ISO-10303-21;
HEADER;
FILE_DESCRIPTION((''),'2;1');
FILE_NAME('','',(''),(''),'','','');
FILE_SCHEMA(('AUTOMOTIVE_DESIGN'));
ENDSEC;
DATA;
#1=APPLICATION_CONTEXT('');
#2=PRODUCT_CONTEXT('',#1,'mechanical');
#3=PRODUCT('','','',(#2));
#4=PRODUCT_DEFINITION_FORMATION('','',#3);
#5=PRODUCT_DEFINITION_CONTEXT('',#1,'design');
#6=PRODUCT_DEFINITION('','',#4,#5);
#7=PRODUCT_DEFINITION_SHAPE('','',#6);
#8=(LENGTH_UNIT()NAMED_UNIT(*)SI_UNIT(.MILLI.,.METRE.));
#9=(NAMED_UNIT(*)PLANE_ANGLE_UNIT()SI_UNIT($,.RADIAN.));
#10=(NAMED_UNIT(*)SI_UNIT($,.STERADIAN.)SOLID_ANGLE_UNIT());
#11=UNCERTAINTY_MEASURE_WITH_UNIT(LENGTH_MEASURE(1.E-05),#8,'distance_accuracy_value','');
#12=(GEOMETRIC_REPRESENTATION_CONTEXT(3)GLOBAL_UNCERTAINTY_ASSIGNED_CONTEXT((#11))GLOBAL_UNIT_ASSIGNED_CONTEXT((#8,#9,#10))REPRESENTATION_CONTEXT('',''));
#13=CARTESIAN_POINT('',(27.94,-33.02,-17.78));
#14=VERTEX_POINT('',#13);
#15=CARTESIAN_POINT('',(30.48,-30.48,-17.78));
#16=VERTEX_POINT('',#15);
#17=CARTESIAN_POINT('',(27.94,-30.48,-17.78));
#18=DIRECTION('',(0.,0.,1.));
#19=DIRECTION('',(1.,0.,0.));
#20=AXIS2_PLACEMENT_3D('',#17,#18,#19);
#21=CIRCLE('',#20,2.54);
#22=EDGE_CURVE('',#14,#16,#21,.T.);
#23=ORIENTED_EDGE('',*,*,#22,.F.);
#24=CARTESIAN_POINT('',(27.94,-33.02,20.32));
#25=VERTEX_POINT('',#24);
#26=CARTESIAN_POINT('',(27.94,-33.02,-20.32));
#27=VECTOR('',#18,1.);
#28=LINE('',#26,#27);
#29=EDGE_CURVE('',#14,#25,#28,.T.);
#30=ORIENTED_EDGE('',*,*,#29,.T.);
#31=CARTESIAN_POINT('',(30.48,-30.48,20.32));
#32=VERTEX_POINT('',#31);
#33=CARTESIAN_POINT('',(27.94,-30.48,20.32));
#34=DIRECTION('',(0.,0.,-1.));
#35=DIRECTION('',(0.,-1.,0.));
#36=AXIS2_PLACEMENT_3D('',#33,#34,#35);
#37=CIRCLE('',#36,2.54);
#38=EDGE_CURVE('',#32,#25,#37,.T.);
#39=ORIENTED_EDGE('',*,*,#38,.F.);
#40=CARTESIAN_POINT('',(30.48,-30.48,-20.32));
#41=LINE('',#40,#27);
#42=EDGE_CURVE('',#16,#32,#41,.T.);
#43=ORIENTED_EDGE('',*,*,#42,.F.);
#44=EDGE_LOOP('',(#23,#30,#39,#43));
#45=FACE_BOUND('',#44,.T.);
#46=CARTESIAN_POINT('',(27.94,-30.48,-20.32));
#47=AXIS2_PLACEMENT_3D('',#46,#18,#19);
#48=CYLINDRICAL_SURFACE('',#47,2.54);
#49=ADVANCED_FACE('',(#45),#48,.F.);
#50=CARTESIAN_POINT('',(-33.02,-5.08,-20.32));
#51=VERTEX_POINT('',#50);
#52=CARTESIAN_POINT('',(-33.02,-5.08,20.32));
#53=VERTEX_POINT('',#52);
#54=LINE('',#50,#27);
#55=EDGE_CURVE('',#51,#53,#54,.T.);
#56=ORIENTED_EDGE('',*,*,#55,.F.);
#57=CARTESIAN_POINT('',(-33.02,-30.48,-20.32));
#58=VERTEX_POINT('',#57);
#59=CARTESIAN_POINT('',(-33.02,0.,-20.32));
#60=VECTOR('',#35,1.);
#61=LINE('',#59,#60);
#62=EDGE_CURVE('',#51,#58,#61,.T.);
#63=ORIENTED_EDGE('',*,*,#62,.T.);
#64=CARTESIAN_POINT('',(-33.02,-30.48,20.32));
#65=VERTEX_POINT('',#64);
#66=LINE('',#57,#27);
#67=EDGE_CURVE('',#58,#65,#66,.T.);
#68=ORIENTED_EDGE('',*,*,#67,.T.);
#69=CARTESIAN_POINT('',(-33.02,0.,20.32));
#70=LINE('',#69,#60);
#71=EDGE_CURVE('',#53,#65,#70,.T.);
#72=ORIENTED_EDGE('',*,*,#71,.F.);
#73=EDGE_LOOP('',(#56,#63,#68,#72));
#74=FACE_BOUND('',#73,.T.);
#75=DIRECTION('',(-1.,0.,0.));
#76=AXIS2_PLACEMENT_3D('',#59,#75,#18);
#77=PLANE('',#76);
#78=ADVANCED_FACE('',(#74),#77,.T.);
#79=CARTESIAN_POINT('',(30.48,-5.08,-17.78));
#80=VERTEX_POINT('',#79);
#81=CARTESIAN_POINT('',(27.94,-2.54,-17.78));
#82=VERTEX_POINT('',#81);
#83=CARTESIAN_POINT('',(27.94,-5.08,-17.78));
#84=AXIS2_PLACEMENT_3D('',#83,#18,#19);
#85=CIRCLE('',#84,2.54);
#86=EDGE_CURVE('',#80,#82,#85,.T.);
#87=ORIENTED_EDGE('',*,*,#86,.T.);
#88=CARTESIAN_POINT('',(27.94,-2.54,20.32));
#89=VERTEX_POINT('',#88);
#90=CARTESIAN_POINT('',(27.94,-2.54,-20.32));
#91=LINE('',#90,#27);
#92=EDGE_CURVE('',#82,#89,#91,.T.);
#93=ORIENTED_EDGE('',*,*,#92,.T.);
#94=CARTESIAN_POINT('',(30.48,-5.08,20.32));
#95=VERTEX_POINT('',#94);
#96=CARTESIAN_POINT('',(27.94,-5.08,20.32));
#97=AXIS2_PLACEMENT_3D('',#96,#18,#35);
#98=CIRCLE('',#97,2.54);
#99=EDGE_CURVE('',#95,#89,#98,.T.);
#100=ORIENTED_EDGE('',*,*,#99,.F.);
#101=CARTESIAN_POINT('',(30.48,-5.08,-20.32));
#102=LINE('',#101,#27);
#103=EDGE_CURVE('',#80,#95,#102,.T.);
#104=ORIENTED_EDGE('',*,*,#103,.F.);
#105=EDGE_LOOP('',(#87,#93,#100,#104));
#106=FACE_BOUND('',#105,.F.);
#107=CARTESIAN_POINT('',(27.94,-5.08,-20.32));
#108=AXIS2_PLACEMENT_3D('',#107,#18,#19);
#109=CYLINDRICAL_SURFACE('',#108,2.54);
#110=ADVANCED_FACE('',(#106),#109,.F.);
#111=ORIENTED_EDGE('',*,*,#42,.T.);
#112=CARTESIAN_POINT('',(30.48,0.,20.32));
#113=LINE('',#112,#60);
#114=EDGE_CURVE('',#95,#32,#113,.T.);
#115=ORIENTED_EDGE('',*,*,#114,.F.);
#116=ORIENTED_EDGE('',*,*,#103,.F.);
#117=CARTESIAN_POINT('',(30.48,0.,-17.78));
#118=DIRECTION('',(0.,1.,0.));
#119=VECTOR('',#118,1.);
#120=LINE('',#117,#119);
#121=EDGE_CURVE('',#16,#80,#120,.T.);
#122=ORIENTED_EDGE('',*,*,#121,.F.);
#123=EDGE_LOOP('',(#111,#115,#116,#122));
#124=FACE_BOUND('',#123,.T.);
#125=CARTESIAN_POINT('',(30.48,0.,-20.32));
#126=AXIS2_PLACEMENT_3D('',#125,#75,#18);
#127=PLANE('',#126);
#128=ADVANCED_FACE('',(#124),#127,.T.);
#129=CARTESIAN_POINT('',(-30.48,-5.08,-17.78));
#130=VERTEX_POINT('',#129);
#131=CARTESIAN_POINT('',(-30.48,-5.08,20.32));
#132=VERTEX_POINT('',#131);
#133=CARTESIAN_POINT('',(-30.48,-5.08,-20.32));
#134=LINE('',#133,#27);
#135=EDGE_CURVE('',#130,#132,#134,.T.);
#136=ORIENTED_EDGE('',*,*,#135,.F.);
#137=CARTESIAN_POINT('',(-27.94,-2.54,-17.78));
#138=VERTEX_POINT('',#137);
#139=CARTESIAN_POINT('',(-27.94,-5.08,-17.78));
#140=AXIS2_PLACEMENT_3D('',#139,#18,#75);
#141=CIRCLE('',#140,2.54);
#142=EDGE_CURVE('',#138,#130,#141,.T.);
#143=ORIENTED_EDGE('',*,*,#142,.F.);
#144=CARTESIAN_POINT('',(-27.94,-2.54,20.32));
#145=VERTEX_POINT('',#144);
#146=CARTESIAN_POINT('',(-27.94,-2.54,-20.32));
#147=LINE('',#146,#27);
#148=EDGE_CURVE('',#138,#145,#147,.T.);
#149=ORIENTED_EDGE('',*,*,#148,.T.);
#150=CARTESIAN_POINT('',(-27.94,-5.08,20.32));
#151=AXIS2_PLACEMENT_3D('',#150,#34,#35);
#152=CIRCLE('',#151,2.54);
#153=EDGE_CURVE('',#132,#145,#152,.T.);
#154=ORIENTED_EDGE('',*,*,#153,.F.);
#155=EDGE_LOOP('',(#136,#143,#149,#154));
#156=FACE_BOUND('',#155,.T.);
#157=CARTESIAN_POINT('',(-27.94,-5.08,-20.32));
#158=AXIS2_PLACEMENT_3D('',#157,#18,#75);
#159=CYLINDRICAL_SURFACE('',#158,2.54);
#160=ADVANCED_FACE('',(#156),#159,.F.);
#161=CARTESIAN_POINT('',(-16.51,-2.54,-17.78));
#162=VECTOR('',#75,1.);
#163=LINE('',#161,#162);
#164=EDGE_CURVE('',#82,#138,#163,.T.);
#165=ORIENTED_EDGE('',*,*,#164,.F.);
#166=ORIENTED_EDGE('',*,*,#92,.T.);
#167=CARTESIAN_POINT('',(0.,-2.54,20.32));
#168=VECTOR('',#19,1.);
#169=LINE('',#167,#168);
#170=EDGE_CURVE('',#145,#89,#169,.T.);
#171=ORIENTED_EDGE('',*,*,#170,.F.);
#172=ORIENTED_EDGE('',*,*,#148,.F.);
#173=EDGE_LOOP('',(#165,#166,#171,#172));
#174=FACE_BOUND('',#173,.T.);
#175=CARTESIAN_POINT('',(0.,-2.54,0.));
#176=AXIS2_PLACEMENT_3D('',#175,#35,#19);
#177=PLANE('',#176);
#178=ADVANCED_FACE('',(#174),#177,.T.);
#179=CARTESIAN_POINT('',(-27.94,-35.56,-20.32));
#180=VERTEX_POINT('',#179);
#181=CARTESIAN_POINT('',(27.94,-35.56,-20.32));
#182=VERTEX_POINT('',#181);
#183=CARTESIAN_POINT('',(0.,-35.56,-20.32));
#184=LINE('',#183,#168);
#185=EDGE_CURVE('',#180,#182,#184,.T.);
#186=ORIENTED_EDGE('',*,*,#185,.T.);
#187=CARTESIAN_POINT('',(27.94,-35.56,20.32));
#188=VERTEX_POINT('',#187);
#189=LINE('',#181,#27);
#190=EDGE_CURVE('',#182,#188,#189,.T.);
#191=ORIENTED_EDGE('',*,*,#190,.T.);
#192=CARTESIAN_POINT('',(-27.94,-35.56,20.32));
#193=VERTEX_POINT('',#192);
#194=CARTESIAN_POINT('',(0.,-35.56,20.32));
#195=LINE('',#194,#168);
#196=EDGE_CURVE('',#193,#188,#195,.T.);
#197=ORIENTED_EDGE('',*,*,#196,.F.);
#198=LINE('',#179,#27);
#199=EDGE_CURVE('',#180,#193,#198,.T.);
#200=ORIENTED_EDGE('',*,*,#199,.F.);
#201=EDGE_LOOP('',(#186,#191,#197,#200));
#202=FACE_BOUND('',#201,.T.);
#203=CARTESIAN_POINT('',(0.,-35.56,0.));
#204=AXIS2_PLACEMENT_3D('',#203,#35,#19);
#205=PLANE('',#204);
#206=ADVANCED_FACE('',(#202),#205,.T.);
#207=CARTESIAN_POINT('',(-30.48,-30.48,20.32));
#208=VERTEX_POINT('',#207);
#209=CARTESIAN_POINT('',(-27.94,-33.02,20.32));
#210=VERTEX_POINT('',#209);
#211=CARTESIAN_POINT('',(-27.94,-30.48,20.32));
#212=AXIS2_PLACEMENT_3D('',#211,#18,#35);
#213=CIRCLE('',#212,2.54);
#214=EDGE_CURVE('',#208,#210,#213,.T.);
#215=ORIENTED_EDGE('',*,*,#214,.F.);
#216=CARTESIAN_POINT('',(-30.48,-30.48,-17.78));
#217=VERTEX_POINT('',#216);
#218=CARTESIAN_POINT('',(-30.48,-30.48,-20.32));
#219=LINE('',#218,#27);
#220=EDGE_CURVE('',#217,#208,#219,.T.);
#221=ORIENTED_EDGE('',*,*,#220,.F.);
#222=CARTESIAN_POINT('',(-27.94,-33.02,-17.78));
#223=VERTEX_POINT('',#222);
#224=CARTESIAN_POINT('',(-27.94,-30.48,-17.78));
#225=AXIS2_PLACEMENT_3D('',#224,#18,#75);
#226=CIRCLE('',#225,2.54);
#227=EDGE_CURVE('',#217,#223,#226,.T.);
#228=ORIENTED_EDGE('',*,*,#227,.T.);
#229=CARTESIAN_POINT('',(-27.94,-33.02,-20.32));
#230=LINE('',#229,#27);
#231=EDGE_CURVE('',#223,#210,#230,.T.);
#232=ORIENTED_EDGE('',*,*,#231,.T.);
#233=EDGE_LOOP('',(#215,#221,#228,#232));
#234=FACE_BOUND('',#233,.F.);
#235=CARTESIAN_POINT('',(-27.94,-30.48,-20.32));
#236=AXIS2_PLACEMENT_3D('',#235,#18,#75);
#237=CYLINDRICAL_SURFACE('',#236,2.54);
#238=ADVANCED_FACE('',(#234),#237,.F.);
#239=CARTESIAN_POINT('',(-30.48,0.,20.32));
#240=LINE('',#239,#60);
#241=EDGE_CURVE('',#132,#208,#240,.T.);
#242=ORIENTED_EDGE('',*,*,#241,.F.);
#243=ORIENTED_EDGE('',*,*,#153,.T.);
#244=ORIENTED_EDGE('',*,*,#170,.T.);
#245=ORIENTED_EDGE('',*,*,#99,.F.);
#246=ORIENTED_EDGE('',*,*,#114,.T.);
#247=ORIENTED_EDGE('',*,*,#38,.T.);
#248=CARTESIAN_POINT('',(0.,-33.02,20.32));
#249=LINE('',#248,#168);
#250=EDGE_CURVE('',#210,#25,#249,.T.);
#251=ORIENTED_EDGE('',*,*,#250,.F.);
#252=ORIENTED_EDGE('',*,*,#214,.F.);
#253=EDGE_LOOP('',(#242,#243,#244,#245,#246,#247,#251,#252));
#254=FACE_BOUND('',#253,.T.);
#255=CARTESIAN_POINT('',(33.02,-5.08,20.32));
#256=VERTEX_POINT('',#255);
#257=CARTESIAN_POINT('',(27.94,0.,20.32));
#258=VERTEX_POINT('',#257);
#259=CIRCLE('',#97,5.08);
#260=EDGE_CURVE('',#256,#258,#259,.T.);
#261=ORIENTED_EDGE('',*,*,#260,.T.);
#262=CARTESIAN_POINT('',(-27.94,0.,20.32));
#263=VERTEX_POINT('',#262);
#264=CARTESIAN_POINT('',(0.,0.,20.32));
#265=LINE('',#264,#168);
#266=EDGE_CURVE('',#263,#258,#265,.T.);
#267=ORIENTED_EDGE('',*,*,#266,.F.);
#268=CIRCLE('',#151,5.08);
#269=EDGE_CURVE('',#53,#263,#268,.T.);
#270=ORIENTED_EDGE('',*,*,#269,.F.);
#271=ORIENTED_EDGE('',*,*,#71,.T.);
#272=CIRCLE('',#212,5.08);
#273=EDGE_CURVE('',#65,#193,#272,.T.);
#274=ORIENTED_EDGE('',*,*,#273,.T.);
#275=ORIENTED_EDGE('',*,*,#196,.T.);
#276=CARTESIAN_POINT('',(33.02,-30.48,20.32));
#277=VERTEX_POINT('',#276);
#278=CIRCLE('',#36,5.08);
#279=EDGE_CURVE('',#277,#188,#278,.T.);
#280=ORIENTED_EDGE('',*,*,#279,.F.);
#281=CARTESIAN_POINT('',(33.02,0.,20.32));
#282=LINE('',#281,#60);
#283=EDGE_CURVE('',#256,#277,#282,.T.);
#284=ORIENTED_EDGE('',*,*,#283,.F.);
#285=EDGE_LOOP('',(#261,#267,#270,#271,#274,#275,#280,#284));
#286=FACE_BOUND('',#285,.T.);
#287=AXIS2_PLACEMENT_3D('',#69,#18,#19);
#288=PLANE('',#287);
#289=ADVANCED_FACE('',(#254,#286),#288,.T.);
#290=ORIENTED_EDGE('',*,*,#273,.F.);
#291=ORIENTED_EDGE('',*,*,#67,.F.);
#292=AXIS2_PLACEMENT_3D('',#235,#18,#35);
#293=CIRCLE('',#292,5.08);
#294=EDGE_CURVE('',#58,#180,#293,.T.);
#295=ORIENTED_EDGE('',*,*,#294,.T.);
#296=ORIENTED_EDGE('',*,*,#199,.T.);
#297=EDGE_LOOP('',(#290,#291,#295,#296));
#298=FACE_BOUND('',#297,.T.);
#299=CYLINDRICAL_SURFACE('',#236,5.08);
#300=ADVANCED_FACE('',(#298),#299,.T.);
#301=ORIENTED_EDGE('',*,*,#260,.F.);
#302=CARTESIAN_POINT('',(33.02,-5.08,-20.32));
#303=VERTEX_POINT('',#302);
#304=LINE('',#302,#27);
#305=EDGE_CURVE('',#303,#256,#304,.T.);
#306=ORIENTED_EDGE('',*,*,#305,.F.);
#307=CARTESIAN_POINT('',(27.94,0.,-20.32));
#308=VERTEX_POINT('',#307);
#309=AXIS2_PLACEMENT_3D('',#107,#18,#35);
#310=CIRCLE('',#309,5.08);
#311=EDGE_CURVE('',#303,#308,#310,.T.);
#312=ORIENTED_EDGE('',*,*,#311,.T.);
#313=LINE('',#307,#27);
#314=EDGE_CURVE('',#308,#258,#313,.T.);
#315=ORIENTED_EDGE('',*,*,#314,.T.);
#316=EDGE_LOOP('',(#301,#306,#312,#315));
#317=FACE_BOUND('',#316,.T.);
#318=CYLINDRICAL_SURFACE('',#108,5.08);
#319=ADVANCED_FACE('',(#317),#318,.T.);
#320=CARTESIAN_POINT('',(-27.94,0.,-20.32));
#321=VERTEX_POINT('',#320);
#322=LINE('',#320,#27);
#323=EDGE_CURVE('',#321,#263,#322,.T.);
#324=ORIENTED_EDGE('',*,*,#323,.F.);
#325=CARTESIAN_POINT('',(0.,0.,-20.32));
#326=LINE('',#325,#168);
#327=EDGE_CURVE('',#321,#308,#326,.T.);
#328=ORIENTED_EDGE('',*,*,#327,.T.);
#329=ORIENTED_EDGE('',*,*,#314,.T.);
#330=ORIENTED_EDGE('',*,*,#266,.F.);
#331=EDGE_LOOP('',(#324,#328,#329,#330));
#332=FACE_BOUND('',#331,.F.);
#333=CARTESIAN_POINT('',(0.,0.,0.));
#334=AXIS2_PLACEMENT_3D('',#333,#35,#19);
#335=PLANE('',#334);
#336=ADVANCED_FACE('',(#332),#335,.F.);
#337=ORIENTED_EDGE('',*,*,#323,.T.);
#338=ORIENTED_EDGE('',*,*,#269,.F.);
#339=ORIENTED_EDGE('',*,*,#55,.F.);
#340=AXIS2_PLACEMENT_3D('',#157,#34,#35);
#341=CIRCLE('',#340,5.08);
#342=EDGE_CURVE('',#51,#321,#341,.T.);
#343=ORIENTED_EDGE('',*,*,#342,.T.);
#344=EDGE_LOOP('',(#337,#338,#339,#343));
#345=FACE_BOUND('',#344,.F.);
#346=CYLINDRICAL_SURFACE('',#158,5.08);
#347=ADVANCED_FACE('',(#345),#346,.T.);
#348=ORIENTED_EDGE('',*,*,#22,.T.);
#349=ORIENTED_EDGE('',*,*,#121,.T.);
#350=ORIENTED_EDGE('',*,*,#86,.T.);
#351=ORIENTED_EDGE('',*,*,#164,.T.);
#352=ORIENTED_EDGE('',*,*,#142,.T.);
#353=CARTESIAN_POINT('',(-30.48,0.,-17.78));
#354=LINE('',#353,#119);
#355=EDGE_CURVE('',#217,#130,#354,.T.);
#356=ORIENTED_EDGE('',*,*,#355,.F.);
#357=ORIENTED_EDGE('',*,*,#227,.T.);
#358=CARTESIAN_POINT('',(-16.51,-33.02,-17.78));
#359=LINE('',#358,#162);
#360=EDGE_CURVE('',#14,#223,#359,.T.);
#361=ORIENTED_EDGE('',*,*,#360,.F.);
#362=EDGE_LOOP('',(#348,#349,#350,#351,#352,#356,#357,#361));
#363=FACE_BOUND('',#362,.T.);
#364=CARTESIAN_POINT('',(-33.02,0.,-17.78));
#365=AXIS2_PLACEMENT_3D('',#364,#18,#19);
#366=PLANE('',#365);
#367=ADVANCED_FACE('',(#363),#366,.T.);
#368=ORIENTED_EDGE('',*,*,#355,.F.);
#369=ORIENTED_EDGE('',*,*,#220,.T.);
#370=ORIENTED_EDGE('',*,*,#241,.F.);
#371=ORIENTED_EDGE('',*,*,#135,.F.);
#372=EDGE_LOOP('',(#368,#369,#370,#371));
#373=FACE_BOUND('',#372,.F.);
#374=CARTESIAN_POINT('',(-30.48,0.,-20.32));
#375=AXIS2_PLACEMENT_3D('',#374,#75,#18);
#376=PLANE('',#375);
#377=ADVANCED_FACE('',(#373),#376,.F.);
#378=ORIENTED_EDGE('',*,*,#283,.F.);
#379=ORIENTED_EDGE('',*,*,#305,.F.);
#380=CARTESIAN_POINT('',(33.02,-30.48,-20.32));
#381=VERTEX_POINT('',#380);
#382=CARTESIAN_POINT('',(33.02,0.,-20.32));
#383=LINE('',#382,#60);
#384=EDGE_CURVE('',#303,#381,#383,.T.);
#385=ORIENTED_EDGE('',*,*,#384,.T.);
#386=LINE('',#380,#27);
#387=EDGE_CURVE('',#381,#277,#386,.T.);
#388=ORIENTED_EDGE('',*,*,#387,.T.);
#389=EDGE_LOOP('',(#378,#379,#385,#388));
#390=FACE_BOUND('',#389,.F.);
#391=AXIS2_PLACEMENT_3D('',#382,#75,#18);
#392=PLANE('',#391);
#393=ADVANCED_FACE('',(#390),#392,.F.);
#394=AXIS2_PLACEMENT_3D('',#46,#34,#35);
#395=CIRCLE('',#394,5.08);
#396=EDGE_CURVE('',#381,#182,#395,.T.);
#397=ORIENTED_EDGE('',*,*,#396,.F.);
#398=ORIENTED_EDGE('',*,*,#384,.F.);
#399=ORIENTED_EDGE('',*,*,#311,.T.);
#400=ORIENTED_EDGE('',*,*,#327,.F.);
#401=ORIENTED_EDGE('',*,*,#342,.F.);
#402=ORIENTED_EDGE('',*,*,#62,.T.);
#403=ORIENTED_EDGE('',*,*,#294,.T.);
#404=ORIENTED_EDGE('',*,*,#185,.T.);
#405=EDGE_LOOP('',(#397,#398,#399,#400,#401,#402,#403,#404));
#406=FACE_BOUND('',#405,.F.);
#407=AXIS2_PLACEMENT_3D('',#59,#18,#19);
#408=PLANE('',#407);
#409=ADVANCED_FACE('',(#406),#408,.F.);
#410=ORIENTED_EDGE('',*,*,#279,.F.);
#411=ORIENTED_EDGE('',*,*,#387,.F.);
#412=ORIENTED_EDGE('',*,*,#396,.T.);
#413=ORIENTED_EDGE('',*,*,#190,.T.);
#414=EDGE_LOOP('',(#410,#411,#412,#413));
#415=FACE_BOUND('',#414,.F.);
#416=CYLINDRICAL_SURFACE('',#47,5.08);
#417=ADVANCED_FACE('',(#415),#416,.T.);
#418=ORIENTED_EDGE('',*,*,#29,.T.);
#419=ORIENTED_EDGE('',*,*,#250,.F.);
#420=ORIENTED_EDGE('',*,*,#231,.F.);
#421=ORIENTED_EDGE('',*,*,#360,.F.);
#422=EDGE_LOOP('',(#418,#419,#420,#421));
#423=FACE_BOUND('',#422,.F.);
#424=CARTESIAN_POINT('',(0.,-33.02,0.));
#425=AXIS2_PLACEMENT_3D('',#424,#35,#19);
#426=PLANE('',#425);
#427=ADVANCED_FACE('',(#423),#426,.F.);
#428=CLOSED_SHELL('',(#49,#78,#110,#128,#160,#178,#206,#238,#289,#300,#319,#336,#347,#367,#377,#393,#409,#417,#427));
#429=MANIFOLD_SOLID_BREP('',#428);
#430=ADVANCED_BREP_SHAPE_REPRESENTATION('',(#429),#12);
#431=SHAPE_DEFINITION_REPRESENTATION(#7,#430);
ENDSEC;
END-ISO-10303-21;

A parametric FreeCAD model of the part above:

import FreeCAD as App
import Part
import Sketcher

V = App.Vector
Q = App.Units.Quantity


def edges_at(feature, points):
    """Names of the edges that pass closest to the given points."""
    edges = feature.Shape.Edges
    near = lambda p: min(range(len(edges)), key=lambda i: edges[i].distToShape(Part.Vertex(*p))[0])
    return sorted({f"Edge{near(p) + 1}" for p in points})


def faces_at(feature, points):
    """Names of the faces that lie closest to the given points."""
    faces = feature.Shape.Faces
    near = lambda p: min(range(len(faces)), key=lambda i: faces[i].distToShape(Part.Vertex(*p))[0])
    return sorted({f"Face{near(p) + 1}" for p in points})


def add_polygon(sketch, points):
    """Adds a closed chain of lines whose ends are joined by coincident constraints."""
    first, n = sketch.GeometryCount, len(points)
    for a, b in zip(points, points[1:] + points[:1]):
        sketch.addGeometry(Part.LineSegment(App.Vector(*a, 0), App.Vector(*b, 0)), False)
    for i in range(n):
        sketch.addConstraint(Sketcher.Constraint("Coincident", first + i, 2, first + (i + 1) % n, 1))

doc = App.newDocument("Part")
body = doc.addObject("PartDesign::Body", "Body")

# Sketch on XZ plane
sketch1 = doc.addObject("Sketcher::SketchObject", "Sketch")
body.addObject(sketch1)
sketch1.AttachmentSupport = (doc.XZ_Plane, [""])
sketch1.MapMode = "FlatFace"
add_polygon(sketch1, [(-33.02, 20.32), (-33.02, -20.32), (33.02, -20.32), (33.02, 20.32)])  # lines 0-3
sketch1.addConstraint([
    Sketcher.Constraint("Vertical", 0),
    Sketcher.Constraint("Horizontal", 1),
    Sketcher.Constraint("Vertical", 2),
    Sketcher.Constraint("Horizontal", 3),
    Sketcher.Constraint("Symmetric", 0, 2, 2, 2, -1, 1),
    Sketcher.Constraint("DistanceX", 1, 1, 1, 2, Q("2.6 in")),
    Sketcher.Constraint("DistanceY", 0, 2, 0, 1, Q("1.6 in")),
])
pad1 = doc.addObject("PartDesign::Pad", "Pad")
body.addObject(pad1)
pad1.Profile = sketch1
pad1.Length = Q("1.4 in")
doc.recompute()

fillet = doc.addObject("PartDesign::Fillet", "Fillet")
body.addObject(fillet)
fillet.Base = (pad1, edges_at(pad1, [
    (33.02, -35.56, 0),
    (33.02, 0, 0),
    (-33.02, -35.56, 0),
    (-33.02, 0, 0),
]))
fillet.Radius = Q("0.2 in")
doc.recompute()

thickness = doc.addObject("PartDesign::Thickness", "Thickness")
body.addObject(thickness)
thickness.Base = (fillet, faces_at(fillet, [(0, -17.78, 20.32)]))
thickness.Value = Q("0.1 in")
thickness.Reversed = True
thickness.Join = "Arc"

doc.recompute()
